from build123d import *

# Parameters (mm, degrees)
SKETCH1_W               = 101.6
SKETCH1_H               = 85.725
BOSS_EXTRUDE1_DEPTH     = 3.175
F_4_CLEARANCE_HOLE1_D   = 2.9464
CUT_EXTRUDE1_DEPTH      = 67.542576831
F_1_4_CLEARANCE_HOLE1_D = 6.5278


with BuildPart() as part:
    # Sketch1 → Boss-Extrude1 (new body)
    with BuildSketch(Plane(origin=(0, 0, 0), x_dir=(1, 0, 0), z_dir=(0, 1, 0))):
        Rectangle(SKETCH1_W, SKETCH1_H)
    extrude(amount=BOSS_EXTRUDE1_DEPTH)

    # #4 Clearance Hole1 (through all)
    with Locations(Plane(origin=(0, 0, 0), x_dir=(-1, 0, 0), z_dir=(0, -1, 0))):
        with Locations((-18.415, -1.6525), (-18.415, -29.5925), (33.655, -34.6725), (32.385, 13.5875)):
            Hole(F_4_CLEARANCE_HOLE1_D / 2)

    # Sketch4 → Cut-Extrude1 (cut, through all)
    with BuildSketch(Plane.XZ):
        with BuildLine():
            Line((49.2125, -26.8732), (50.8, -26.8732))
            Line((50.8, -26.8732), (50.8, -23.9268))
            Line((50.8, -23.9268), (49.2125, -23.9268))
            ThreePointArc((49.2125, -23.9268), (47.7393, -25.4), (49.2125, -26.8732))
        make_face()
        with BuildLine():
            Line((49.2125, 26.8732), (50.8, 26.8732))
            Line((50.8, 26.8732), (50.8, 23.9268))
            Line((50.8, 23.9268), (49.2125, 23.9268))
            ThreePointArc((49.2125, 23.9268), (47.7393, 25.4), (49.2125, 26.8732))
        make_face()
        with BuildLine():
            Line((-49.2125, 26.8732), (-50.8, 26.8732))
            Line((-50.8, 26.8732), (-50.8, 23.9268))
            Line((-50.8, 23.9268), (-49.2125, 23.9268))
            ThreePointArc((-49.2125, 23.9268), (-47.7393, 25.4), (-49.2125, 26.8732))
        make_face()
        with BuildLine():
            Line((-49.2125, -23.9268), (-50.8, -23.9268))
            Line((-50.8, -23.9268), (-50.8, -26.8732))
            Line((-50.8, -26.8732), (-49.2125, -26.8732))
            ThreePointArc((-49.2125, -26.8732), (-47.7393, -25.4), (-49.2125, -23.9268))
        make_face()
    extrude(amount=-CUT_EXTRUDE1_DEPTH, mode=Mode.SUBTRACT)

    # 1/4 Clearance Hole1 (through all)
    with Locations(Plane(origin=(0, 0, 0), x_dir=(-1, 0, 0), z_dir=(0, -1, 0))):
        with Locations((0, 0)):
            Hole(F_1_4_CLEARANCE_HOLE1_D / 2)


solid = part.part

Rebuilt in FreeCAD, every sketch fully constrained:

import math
import FreeCAD as App
import Part
import Sketcher

V = App.Vector
Q = App.Units.Quantity

doc = App.newDocument("Part")
body = doc.addObject("PartDesign::Body", "Body")

# Sketch on XZ plane
sketch1 = doc.addObject("Sketcher::SketchObject", "Sketch")
body.addObject(sketch1)
sketch1.AttachmentSupport = (doc.XZ_Plane, [""])
sketch1.MapMode = "FlatFace"
sketch1.addGeometry([
    Part.LineSegment(V(-51, -43, 0), V(-51, 43, 0)),
    Part.LineSegment(V(-51, 43, 0), V(51, 43, 0)),
    Part.LineSegment(V(51, 43, 0), V(51, -43, 0)),
    Part.LineSegment(V(51, -43, 0), V(-51, -43, 0)),
], False)
sketch1.addConstraint([
    Sketcher.Constraint("Coincident", 0, 2, 1, 1),
    Sketcher.Constraint("Coincident", 1, 2, 2, 1),
    Sketcher.Constraint("Coincident", 2, 2, 3, 1),
    Sketcher.Constraint("Coincident", 3, 2, 0, 1),
    Sketcher.Constraint("Vertical", 0),
    Sketcher.Constraint("Horizontal", 1),
    Sketcher.Constraint("Vertical", 2),
    Sketcher.Constraint("Horizontal", 3),
    Sketcher.Constraint("Symmetric", 0, 2, 2, 2, -1, 1),
    Sketcher.Constraint("DistanceX", 1, 1, 1, 2, Q("4 in")),
    Sketcher.Constraint("DistanceY", 0, 1, 0, 2, Q("3.375 in")),
])
pad1 = doc.addObject("PartDesign::Pad", "Pad")
body.addObject(pad1)
pad1.Profile = sketch1
pad1.Length = Q("0.125 in")
pad1.Reversed = True

# Sketch on XZ plane
sketch2 = doc.addObject("Sketcher::SketchObject", "Sketch001")
body.addObject(sketch2)
sketch2.AttachmentSupport = (doc.XZ_Plane, [""])
sketch2.MapMode = "FlatFace"
sketch2.addGeometry([
    Part.Circle(V(18.4, 1.7, 0), V(0, 0, 1), 1.5),
    Part.Circle(V(18.4, 29.6, 0), V(0, 0, 1), 1.5),
    Part.Circle(V(-33.7, 34.7, 0), V(0, 0, 1), 1.5),
    Part.Circle(V(-32.4, -13.6, 0), V(0, 0, 1), 1.5),
], False)
sketch2.addConstraint([
    Sketcher.Constraint("Equal", 0, 1),
    Sketcher.Constraint("Equal", 1, 2),
    Sketcher.Constraint("Equal", 2, 3),
    Sketcher.Constraint("Vertical", 0, 3, 1, 3),
    Sketcher.Constraint("Diameter", 0, Q("0.116 in")),
    Sketcher.Constraint("DistanceX", 3, 3, 0, 3, Q("2 in")),
    Sketcher.Constraint("DistanceY", 0, 3, 1, 3, Q("1.1 in")),
    Sketcher.Constraint("DistanceY", 1, 3, 2, 3, Q("0.2 in")),
    Sketcher.Constraint("DistanceY", 3, 3, 2, 3, Q("1.9 in")),
    Sketcher.Constraint("DistanceX", 2, 3, 1, 3, Q("2.05 in")),
    Sketcher.Constraint("DistanceX", -1, 1, 0, 3, Q("0.725 in")),
    Sketcher.Constraint("DistanceY", -1, 1, 0, 3, 1.6525),
])
doc.recompute()
hole = doc.addObject("PartDesign::Hole", "Hole")
body.addObject(hole)
hole.Profile = sketch2
hole.ThreadType = "None"
hole.Diameter = Q("0.116 in")
hole.DepthType = "ThroughAll"

# Sketch on XZ plane
sketch3 = doc.addObject("Sketcher::SketchObject", "Sketch002")
body.addObject(sketch3)
sketch3.AttachmentSupport = (doc.XZ_Plane, [""])
sketch3.MapMode = "FlatFace"
sketch3.addGeometry([
    Part.LineSegment(V(49.2, -26.9, 0), V(50.8, -26.9, 0)),  # 0
    Part.LineSegment(V(50.8, -26.9, 0), V(50.8, -23.9, 0)),  # 1
    Part.LineSegment(V(50.8, -23.9, 0), V(49.2, -23.9, 0)),  # 2
    Part.ArcOfCircle(Part.Circle(V(49.2, -25.4, 0), V(0, 0, 1), 1.5), math.radians(90), math.radians(270)),  # 3
    Part.LineSegment(V(50.8, 26.9, 0), V(49.2, 26.9, 0)),  # 4
    Part.ArcOfCircle(Part.Circle(V(49.2, 25.4, 0), V(0, 0, 1), 1.5), math.radians(90), math.radians(270)),  # 5
    Part.LineSegment(V(49.2, 23.9, 0), V(50.8, 23.9, 0)),  # 6
    Part.LineSegment(V(50.8, 23.9, 0), V(50.8, 26.9, 0)),  # 7
    Part.LineSegment(V(-49.2, 26.9, 0), V(-50.8, 26.9, 0)),  # 8
    Part.LineSegment(V(-50.8, 26.9, 0), V(-50.8, 23.9, 0)),  # 9
    Part.LineSegment(V(-50.8, 23.9, 0), V(-49.2, 23.9, 0)),  # 10
    Part.ArcOfCircle(Part.Circle(V(-49.2, 25.4, 0), V(0, 0, 1), 1.5), math.radians(-90), math.radians(90)),  # 11
    Part.LineSegment(V(-49.2, -23.9, 0), V(-50.8, -23.9, 0)),  # 12
    Part.LineSegment(V(-50.8, -23.9, 0), V(-50.8, -26.9, 0)),  # 13
    Part.LineSegment(V(-50.8, -26.9, 0), V(-49.2, -26.9, 0)),  # 14
    Part.ArcOfCircle(Part.Circle(V(-49.2, -25.4, 0), V(0, 0, 1), 1.5), math.radians(-90), math.radians(90)),  # 15
], False)
sketch3.addConstraint([
    Sketcher.Constraint("Coincident", 0, 2, 1, 1),
    Sketcher.Constraint("Coincident", 1, 2, 2, 1),
    Sketcher.Constraint("Tangent", 2, 2, 3, 1),
    Sketcher.Constraint("Tangent", 3, 2, 0, 1),
    Sketcher.Constraint("Tangent", 4, 2, 5, 1),
    Sketcher.Constraint("Tangent", 5, 2, 6, 1),
    Sketcher.Constraint("Coincident", 6, 2, 7, 1),
    Sketcher.Constraint("Coincident", 7, 2, 4, 1),
    Sketcher.Constraint("Coincident", 8, 2, 9, 1),
    Sketcher.Constraint("Coincident", 9, 2, 10, 1),
    Sketcher.Constraint("Tangent", 10, 2, 11, 1),
    Sketcher.Constraint("Tangent", 11, 2, 8, 1),
    Sketcher.Constraint("Coincident", 12, 2, 13, 1),
    Sketcher.Constraint("Coincident", 13, 2, 14, 1),
    Sketcher.Constraint("Tangent", 14, 2, 15, 1),
    Sketcher.Constraint("Tangent", 15, 2, 12, 1),
    Sketcher.Constraint("Horizontal", 0),
    Sketcher.Constraint("Vertical", 1),
    Sketcher.Constraint("Horizontal", 2),
    Sketcher.Constraint("Horizontal", 4),
    Sketcher.Constraint("Horizontal", 6),
    Sketcher.Constraint("Vertical", 7),
    Sketcher.Constraint("Horizontal", 8),
    Sketcher.Constraint("Vertical", 9),
    Sketcher.Constraint("Horizontal", 10),
    Sketcher.Constraint("Horizontal", 12),
    Sketcher.Constraint("Vertical", 13),
    Sketcher.Constraint("Horizontal", 14),
    Sketcher.Constraint("Equal", 3, 5),
    Sketcher.Constraint("Equal", 5, 11),
    Sketcher.Constraint("Equal", 11, 15),
    Sketcher.Constraint("Symmetric", 3, 3, 11, 3, -1, 1),
    Sketcher.Constraint("Symmetric", 5, 3, 15, 3, -1, 1),
    Sketcher.Constraint("Symmetric", 5, 3, 11, 3, -2),
    Sketcher.Constraint("Vertical", 1, 2, 6, 2),
    Sketcher.Constraint("Vertical", 9, 2, 12, 2),
    Sketcher.Constraint("Equal", 6, 8),
    Sketcher.Constraint("DistanceY", 3, 3, -1, 1, Q("1 in")),
    Sketcher.Constraint("DistanceX", -1, 1, 0, 2, Q("2 in")),
    Sketcher.Constraint("Radius", 3, Q("0.058 in")),
    Sketcher.Constraint("DistanceX", 0, 1, 0, 2, Q("0.0625 in")),
])
pocket1 = doc.addObject("PartDesign::Pocket", "Pocket")
body.addObject(pocket1)
pocket1.Profile = sketch3
pocket1.Type = "ThroughAll"

# Sketch on XZ plane
sketch4 = doc.addObject("Sketcher::SketchObject", "Sketch003")
body.addObject(sketch4)
sketch4.AttachmentSupport = (doc.XZ_Plane, [""])
sketch4.MapMode = "FlatFace"
sketch4.addGeometry(Part.Circle(V(0, 0, 0), V(0, 0, 1), 3.3), False)
sketch4.addConstraint([
    Sketcher.Constraint("Coincident", 0, 3, -1, 1),
    Sketcher.Constraint("Diameter", 0, Q("0.257 in")),
])
doc.recompute()
hole2 = doc.addObject("PartDesign::Hole", "Hole001")
body.addObject(hole2)
hole2.Profile = sketch4
hole2.ThreadType = "None"
hole2.Diameter = Q("0.257 in")
hole2.DepthType = "ThroughAll"

doc.recompute()
